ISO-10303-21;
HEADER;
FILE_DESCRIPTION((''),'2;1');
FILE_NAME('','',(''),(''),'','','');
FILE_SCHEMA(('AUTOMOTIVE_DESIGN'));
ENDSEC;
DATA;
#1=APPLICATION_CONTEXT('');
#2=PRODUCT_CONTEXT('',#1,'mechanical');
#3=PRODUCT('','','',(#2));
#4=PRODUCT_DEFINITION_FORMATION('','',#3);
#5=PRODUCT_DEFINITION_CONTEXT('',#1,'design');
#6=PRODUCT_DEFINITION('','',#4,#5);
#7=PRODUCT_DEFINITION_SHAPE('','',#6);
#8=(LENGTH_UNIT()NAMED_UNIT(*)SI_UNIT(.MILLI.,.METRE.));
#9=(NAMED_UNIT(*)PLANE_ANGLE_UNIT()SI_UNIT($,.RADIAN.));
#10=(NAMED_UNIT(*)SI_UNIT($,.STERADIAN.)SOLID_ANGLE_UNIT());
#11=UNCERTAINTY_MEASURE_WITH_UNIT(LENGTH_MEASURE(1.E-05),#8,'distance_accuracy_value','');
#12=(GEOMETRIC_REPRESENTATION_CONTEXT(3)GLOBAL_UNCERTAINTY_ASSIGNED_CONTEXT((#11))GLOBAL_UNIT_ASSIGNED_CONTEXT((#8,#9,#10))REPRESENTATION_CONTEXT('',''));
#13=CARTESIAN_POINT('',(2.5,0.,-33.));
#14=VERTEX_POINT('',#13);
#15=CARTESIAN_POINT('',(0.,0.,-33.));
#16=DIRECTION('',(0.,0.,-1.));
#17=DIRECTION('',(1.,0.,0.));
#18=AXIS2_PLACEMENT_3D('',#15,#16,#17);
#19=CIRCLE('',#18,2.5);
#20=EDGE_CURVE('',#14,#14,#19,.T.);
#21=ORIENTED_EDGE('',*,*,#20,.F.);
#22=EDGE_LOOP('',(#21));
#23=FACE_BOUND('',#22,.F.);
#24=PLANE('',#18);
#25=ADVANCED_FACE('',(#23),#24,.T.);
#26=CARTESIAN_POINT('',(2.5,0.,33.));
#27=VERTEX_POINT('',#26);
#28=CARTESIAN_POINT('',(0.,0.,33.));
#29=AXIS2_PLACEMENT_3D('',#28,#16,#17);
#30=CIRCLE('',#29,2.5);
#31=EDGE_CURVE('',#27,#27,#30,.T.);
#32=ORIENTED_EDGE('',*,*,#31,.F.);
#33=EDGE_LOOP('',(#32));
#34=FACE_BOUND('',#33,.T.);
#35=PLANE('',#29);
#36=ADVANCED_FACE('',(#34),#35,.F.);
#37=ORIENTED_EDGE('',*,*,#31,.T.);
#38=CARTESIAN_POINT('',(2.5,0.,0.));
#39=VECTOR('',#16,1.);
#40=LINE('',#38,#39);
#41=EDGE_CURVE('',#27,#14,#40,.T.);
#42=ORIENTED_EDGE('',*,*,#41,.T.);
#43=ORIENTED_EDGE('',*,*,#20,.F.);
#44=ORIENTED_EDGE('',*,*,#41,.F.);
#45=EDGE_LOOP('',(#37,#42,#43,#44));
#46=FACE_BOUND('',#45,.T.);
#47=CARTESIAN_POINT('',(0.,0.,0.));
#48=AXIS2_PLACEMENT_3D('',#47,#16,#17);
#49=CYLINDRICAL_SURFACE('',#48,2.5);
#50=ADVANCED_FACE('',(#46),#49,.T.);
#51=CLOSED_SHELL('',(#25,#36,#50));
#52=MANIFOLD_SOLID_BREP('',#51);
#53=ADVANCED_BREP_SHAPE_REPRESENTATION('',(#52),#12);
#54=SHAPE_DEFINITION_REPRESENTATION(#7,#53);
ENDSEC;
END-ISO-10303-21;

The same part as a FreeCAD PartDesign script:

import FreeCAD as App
import Part
import Sketcher

V = App.Vector
Q = App.Units.Quantity

doc = App.newDocument("Part")
body = doc.addObject("PartDesign::Body", "Body")

# Sketch on XZ plane
sketch1 = body.newObject("Sketcher::SketchObject", "Sketch")
sketch1.AttachmentSupport = (doc.getObject("XZ_Plane"), [""])
sketch1.MapMode = "FlatFace"
sketch1.addGeometry(Part.LineSegment(V(0, -33, 0), V(0, 33, 0)), False)
sketch1.addGeometry(Part.LineSegment(V(0, 33, 0), V(2.5, 33, 0)), False)
sketch1.addGeometry(Part.LineSegment(V(2.5, 33, 0), V(2.5, -33, 0)), False)
sketch1.addGeometry(Part.LineSegment(V(2.5, -33, 0), V(0, -33, 0)), False)
sketch1.addConstraint(Sketcher.Constraint("Coincident", 0, 2, 1, 1))
sketch1.addConstraint(Sketcher.Constraint("Coincident", 1, 2, 2, 1))
sketch1.addConstraint(Sketcher.Constraint("Coincident", 2, 2, 3, 1))
sketch1.addConstraint(Sketcher.Constraint("Coincident", 3, 2, 0, 1))
sketch1.addConstraint(Sketcher.Constraint("Vertical", 0))
sketch1.addConstraint(Sketcher.Constraint("Horizontal", 1))
sketch1.addConstraint(Sketcher.Constraint("Vertical", 2))
sketch1.addConstraint(Sketcher.Constraint("Horizontal", 3))
sketch1.addConstraint(Sketcher.Constraint("Symmetric", 0, 2, 3, 2, -1, 1))
sketch1.addConstraint(Sketcher.Constraint("DistanceY", 0, 1, 0, 2, Q("66 mm")))
sketch1.addConstraint(Sketcher.Constraint("DistanceX", 1, 1, 1, 2, Q("2.5 mm")))
revolution = body.newObject("PartDesign::Revolution", "Revolution")
revolution.Profile = sketch1
revolution.ReferenceAxis = (sketch1, ["V_Axis"])
revolution.Angle = 360

doc.recompute()
